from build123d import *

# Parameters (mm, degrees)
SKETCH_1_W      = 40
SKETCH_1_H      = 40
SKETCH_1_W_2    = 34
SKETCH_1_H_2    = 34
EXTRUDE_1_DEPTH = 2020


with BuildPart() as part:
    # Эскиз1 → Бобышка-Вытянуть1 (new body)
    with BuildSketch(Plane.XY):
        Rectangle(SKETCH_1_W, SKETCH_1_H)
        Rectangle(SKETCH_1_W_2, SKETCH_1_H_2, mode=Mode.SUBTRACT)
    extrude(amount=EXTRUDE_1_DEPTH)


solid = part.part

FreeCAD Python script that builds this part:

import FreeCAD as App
import Part
import Sketcher

doc = App.newDocument("Part")
params = doc.addObject("Spreadsheet::Sheet", "Params")
for row, (alias, value) in enumerate([
    ("sketch1_width", "40 mm"),
    ("sketch1_width2", "34 mm"),
    ("pad1_length", "2020 mm"),
], start=1):
    params.set(f"A{row}", alias)
    params.set(f"B{row}", "=" + value)
    params.setAlias(f"B{row}", alias)

body = doc.addObject("PartDesign::Body", "Body")

# Sketch on XY plane
sketch1 = doc.addObject("Sketcher::SketchObject", "Sketch")
body.addObject(sketch1)
sketch1.AttachmentSupport = (doc.XY_Plane, [""])
sketch1.MapMode = "FlatFace"
sketch1.addGeometry(Part.LineSegment(App.Vector(-20, 20, 0), App.Vector(-20, -20, 0)), False)
sketch1.addGeometry(Part.LineSegment(App.Vector(-20, -20, 0), App.Vector(20, -20, 0)), False)
sketch1.addGeometry(Part.LineSegment(App.Vector(20, -20, 0), App.Vector(20, 20, 0)), False)
sketch1.addGeometry(Part.LineSegment(App.Vector(20, 20, 0), App.Vector(-20, 20, 0)), False)
sketch1.addGeometry(Part.LineSegment(App.Vector(17, -17, 0), App.Vector(-17, -17, 0)), False)
sketch1.addGeometry(Part.LineSegment(App.Vector(-17, -17, 0), App.Vector(-17, 17, 0)), False)
sketch1.addGeometry(Part.LineSegment(App.Vector(-17, 17, 0), App.Vector(17, 17, 0)), False)
sketch1.addGeometry(Part.LineSegment(App.Vector(17, 17, 0), App.Vector(17, -17, 0)), False)
sketch1.addConstraint(Sketcher.Constraint("Coincident", 0, 2, 1, 1))
sketch1.addConstraint(Sketcher.Constraint("Coincident", 1, 2, 2, 1))
sketch1.addConstraint(Sketcher.Constraint("Coincident", 2, 2, 3, 1))
sketch1.addConstraint(Sketcher.Constraint("Coincident", 3, 2, 0, 1))
sketch1.addConstraint(Sketcher.Constraint("Coincident", 4, 2, 5, 1))
sketch1.addConstraint(Sketcher.Constraint("Coincident", 5, 2, 6, 1))
sketch1.addConstraint(Sketcher.Constraint("Coincident", 6, 2, 7, 1))
sketch1.addConstraint(Sketcher.Constraint("Coincident", 7, 2, 4, 1))
sketch1.addConstraint(Sketcher.Constraint("Vertical", 0))
sketch1.addConstraint(Sketcher.Constraint("Horizontal", 1))
sketch1.addConstraint(Sketcher.Constraint("Vertical", 2))
sketch1.addConstraint(Sketcher.Constraint("Horizontal", 3))
sketch1.addConstraint(Sketcher.Constraint("Horizontal", 4))
sketch1.addConstraint(Sketcher.Constraint("Vertical", 5))
sketch1.addConstraint(Sketcher.Constraint("Horizontal", 6))
sketch1.addConstraint(Sketcher.Constraint("Vertical", 7))
sketch1.addConstraint(Sketcher.Constraint("Symmetric", 0, 2, 2, 2, -1, 1))
sketch1.addConstraint(Sketcher.Constraint("Symmetric", 4, 2, 6, 2, -1, 1))
sketch1.addConstraint(Sketcher.Constraint("Equal", 3, 0))
sketch1.addConstraint(Sketcher.Constraint("Equal", 6, 5))
sketch1.addConstraint(Sketcher.Constraint("DistanceX", 1, 1, 1, 2, 40.0))
sketch1.addConstraint(Sketcher.Constraint("DistanceX", 4, 2, 4, 1, 34.0))
sketch1.setExpression("Constraints[20]", "Params.sketch1_width")
sketch1.setExpression("Constraints[21]", "Params.sketch1_width2")
pad1 = doc.addObject("PartDesign::Pad", "Pad")
body.addObject(pad1)
pad1.Profile = sketch1
pad1.setExpression("Length", "Params.pad1_length")

doc.recompute()
